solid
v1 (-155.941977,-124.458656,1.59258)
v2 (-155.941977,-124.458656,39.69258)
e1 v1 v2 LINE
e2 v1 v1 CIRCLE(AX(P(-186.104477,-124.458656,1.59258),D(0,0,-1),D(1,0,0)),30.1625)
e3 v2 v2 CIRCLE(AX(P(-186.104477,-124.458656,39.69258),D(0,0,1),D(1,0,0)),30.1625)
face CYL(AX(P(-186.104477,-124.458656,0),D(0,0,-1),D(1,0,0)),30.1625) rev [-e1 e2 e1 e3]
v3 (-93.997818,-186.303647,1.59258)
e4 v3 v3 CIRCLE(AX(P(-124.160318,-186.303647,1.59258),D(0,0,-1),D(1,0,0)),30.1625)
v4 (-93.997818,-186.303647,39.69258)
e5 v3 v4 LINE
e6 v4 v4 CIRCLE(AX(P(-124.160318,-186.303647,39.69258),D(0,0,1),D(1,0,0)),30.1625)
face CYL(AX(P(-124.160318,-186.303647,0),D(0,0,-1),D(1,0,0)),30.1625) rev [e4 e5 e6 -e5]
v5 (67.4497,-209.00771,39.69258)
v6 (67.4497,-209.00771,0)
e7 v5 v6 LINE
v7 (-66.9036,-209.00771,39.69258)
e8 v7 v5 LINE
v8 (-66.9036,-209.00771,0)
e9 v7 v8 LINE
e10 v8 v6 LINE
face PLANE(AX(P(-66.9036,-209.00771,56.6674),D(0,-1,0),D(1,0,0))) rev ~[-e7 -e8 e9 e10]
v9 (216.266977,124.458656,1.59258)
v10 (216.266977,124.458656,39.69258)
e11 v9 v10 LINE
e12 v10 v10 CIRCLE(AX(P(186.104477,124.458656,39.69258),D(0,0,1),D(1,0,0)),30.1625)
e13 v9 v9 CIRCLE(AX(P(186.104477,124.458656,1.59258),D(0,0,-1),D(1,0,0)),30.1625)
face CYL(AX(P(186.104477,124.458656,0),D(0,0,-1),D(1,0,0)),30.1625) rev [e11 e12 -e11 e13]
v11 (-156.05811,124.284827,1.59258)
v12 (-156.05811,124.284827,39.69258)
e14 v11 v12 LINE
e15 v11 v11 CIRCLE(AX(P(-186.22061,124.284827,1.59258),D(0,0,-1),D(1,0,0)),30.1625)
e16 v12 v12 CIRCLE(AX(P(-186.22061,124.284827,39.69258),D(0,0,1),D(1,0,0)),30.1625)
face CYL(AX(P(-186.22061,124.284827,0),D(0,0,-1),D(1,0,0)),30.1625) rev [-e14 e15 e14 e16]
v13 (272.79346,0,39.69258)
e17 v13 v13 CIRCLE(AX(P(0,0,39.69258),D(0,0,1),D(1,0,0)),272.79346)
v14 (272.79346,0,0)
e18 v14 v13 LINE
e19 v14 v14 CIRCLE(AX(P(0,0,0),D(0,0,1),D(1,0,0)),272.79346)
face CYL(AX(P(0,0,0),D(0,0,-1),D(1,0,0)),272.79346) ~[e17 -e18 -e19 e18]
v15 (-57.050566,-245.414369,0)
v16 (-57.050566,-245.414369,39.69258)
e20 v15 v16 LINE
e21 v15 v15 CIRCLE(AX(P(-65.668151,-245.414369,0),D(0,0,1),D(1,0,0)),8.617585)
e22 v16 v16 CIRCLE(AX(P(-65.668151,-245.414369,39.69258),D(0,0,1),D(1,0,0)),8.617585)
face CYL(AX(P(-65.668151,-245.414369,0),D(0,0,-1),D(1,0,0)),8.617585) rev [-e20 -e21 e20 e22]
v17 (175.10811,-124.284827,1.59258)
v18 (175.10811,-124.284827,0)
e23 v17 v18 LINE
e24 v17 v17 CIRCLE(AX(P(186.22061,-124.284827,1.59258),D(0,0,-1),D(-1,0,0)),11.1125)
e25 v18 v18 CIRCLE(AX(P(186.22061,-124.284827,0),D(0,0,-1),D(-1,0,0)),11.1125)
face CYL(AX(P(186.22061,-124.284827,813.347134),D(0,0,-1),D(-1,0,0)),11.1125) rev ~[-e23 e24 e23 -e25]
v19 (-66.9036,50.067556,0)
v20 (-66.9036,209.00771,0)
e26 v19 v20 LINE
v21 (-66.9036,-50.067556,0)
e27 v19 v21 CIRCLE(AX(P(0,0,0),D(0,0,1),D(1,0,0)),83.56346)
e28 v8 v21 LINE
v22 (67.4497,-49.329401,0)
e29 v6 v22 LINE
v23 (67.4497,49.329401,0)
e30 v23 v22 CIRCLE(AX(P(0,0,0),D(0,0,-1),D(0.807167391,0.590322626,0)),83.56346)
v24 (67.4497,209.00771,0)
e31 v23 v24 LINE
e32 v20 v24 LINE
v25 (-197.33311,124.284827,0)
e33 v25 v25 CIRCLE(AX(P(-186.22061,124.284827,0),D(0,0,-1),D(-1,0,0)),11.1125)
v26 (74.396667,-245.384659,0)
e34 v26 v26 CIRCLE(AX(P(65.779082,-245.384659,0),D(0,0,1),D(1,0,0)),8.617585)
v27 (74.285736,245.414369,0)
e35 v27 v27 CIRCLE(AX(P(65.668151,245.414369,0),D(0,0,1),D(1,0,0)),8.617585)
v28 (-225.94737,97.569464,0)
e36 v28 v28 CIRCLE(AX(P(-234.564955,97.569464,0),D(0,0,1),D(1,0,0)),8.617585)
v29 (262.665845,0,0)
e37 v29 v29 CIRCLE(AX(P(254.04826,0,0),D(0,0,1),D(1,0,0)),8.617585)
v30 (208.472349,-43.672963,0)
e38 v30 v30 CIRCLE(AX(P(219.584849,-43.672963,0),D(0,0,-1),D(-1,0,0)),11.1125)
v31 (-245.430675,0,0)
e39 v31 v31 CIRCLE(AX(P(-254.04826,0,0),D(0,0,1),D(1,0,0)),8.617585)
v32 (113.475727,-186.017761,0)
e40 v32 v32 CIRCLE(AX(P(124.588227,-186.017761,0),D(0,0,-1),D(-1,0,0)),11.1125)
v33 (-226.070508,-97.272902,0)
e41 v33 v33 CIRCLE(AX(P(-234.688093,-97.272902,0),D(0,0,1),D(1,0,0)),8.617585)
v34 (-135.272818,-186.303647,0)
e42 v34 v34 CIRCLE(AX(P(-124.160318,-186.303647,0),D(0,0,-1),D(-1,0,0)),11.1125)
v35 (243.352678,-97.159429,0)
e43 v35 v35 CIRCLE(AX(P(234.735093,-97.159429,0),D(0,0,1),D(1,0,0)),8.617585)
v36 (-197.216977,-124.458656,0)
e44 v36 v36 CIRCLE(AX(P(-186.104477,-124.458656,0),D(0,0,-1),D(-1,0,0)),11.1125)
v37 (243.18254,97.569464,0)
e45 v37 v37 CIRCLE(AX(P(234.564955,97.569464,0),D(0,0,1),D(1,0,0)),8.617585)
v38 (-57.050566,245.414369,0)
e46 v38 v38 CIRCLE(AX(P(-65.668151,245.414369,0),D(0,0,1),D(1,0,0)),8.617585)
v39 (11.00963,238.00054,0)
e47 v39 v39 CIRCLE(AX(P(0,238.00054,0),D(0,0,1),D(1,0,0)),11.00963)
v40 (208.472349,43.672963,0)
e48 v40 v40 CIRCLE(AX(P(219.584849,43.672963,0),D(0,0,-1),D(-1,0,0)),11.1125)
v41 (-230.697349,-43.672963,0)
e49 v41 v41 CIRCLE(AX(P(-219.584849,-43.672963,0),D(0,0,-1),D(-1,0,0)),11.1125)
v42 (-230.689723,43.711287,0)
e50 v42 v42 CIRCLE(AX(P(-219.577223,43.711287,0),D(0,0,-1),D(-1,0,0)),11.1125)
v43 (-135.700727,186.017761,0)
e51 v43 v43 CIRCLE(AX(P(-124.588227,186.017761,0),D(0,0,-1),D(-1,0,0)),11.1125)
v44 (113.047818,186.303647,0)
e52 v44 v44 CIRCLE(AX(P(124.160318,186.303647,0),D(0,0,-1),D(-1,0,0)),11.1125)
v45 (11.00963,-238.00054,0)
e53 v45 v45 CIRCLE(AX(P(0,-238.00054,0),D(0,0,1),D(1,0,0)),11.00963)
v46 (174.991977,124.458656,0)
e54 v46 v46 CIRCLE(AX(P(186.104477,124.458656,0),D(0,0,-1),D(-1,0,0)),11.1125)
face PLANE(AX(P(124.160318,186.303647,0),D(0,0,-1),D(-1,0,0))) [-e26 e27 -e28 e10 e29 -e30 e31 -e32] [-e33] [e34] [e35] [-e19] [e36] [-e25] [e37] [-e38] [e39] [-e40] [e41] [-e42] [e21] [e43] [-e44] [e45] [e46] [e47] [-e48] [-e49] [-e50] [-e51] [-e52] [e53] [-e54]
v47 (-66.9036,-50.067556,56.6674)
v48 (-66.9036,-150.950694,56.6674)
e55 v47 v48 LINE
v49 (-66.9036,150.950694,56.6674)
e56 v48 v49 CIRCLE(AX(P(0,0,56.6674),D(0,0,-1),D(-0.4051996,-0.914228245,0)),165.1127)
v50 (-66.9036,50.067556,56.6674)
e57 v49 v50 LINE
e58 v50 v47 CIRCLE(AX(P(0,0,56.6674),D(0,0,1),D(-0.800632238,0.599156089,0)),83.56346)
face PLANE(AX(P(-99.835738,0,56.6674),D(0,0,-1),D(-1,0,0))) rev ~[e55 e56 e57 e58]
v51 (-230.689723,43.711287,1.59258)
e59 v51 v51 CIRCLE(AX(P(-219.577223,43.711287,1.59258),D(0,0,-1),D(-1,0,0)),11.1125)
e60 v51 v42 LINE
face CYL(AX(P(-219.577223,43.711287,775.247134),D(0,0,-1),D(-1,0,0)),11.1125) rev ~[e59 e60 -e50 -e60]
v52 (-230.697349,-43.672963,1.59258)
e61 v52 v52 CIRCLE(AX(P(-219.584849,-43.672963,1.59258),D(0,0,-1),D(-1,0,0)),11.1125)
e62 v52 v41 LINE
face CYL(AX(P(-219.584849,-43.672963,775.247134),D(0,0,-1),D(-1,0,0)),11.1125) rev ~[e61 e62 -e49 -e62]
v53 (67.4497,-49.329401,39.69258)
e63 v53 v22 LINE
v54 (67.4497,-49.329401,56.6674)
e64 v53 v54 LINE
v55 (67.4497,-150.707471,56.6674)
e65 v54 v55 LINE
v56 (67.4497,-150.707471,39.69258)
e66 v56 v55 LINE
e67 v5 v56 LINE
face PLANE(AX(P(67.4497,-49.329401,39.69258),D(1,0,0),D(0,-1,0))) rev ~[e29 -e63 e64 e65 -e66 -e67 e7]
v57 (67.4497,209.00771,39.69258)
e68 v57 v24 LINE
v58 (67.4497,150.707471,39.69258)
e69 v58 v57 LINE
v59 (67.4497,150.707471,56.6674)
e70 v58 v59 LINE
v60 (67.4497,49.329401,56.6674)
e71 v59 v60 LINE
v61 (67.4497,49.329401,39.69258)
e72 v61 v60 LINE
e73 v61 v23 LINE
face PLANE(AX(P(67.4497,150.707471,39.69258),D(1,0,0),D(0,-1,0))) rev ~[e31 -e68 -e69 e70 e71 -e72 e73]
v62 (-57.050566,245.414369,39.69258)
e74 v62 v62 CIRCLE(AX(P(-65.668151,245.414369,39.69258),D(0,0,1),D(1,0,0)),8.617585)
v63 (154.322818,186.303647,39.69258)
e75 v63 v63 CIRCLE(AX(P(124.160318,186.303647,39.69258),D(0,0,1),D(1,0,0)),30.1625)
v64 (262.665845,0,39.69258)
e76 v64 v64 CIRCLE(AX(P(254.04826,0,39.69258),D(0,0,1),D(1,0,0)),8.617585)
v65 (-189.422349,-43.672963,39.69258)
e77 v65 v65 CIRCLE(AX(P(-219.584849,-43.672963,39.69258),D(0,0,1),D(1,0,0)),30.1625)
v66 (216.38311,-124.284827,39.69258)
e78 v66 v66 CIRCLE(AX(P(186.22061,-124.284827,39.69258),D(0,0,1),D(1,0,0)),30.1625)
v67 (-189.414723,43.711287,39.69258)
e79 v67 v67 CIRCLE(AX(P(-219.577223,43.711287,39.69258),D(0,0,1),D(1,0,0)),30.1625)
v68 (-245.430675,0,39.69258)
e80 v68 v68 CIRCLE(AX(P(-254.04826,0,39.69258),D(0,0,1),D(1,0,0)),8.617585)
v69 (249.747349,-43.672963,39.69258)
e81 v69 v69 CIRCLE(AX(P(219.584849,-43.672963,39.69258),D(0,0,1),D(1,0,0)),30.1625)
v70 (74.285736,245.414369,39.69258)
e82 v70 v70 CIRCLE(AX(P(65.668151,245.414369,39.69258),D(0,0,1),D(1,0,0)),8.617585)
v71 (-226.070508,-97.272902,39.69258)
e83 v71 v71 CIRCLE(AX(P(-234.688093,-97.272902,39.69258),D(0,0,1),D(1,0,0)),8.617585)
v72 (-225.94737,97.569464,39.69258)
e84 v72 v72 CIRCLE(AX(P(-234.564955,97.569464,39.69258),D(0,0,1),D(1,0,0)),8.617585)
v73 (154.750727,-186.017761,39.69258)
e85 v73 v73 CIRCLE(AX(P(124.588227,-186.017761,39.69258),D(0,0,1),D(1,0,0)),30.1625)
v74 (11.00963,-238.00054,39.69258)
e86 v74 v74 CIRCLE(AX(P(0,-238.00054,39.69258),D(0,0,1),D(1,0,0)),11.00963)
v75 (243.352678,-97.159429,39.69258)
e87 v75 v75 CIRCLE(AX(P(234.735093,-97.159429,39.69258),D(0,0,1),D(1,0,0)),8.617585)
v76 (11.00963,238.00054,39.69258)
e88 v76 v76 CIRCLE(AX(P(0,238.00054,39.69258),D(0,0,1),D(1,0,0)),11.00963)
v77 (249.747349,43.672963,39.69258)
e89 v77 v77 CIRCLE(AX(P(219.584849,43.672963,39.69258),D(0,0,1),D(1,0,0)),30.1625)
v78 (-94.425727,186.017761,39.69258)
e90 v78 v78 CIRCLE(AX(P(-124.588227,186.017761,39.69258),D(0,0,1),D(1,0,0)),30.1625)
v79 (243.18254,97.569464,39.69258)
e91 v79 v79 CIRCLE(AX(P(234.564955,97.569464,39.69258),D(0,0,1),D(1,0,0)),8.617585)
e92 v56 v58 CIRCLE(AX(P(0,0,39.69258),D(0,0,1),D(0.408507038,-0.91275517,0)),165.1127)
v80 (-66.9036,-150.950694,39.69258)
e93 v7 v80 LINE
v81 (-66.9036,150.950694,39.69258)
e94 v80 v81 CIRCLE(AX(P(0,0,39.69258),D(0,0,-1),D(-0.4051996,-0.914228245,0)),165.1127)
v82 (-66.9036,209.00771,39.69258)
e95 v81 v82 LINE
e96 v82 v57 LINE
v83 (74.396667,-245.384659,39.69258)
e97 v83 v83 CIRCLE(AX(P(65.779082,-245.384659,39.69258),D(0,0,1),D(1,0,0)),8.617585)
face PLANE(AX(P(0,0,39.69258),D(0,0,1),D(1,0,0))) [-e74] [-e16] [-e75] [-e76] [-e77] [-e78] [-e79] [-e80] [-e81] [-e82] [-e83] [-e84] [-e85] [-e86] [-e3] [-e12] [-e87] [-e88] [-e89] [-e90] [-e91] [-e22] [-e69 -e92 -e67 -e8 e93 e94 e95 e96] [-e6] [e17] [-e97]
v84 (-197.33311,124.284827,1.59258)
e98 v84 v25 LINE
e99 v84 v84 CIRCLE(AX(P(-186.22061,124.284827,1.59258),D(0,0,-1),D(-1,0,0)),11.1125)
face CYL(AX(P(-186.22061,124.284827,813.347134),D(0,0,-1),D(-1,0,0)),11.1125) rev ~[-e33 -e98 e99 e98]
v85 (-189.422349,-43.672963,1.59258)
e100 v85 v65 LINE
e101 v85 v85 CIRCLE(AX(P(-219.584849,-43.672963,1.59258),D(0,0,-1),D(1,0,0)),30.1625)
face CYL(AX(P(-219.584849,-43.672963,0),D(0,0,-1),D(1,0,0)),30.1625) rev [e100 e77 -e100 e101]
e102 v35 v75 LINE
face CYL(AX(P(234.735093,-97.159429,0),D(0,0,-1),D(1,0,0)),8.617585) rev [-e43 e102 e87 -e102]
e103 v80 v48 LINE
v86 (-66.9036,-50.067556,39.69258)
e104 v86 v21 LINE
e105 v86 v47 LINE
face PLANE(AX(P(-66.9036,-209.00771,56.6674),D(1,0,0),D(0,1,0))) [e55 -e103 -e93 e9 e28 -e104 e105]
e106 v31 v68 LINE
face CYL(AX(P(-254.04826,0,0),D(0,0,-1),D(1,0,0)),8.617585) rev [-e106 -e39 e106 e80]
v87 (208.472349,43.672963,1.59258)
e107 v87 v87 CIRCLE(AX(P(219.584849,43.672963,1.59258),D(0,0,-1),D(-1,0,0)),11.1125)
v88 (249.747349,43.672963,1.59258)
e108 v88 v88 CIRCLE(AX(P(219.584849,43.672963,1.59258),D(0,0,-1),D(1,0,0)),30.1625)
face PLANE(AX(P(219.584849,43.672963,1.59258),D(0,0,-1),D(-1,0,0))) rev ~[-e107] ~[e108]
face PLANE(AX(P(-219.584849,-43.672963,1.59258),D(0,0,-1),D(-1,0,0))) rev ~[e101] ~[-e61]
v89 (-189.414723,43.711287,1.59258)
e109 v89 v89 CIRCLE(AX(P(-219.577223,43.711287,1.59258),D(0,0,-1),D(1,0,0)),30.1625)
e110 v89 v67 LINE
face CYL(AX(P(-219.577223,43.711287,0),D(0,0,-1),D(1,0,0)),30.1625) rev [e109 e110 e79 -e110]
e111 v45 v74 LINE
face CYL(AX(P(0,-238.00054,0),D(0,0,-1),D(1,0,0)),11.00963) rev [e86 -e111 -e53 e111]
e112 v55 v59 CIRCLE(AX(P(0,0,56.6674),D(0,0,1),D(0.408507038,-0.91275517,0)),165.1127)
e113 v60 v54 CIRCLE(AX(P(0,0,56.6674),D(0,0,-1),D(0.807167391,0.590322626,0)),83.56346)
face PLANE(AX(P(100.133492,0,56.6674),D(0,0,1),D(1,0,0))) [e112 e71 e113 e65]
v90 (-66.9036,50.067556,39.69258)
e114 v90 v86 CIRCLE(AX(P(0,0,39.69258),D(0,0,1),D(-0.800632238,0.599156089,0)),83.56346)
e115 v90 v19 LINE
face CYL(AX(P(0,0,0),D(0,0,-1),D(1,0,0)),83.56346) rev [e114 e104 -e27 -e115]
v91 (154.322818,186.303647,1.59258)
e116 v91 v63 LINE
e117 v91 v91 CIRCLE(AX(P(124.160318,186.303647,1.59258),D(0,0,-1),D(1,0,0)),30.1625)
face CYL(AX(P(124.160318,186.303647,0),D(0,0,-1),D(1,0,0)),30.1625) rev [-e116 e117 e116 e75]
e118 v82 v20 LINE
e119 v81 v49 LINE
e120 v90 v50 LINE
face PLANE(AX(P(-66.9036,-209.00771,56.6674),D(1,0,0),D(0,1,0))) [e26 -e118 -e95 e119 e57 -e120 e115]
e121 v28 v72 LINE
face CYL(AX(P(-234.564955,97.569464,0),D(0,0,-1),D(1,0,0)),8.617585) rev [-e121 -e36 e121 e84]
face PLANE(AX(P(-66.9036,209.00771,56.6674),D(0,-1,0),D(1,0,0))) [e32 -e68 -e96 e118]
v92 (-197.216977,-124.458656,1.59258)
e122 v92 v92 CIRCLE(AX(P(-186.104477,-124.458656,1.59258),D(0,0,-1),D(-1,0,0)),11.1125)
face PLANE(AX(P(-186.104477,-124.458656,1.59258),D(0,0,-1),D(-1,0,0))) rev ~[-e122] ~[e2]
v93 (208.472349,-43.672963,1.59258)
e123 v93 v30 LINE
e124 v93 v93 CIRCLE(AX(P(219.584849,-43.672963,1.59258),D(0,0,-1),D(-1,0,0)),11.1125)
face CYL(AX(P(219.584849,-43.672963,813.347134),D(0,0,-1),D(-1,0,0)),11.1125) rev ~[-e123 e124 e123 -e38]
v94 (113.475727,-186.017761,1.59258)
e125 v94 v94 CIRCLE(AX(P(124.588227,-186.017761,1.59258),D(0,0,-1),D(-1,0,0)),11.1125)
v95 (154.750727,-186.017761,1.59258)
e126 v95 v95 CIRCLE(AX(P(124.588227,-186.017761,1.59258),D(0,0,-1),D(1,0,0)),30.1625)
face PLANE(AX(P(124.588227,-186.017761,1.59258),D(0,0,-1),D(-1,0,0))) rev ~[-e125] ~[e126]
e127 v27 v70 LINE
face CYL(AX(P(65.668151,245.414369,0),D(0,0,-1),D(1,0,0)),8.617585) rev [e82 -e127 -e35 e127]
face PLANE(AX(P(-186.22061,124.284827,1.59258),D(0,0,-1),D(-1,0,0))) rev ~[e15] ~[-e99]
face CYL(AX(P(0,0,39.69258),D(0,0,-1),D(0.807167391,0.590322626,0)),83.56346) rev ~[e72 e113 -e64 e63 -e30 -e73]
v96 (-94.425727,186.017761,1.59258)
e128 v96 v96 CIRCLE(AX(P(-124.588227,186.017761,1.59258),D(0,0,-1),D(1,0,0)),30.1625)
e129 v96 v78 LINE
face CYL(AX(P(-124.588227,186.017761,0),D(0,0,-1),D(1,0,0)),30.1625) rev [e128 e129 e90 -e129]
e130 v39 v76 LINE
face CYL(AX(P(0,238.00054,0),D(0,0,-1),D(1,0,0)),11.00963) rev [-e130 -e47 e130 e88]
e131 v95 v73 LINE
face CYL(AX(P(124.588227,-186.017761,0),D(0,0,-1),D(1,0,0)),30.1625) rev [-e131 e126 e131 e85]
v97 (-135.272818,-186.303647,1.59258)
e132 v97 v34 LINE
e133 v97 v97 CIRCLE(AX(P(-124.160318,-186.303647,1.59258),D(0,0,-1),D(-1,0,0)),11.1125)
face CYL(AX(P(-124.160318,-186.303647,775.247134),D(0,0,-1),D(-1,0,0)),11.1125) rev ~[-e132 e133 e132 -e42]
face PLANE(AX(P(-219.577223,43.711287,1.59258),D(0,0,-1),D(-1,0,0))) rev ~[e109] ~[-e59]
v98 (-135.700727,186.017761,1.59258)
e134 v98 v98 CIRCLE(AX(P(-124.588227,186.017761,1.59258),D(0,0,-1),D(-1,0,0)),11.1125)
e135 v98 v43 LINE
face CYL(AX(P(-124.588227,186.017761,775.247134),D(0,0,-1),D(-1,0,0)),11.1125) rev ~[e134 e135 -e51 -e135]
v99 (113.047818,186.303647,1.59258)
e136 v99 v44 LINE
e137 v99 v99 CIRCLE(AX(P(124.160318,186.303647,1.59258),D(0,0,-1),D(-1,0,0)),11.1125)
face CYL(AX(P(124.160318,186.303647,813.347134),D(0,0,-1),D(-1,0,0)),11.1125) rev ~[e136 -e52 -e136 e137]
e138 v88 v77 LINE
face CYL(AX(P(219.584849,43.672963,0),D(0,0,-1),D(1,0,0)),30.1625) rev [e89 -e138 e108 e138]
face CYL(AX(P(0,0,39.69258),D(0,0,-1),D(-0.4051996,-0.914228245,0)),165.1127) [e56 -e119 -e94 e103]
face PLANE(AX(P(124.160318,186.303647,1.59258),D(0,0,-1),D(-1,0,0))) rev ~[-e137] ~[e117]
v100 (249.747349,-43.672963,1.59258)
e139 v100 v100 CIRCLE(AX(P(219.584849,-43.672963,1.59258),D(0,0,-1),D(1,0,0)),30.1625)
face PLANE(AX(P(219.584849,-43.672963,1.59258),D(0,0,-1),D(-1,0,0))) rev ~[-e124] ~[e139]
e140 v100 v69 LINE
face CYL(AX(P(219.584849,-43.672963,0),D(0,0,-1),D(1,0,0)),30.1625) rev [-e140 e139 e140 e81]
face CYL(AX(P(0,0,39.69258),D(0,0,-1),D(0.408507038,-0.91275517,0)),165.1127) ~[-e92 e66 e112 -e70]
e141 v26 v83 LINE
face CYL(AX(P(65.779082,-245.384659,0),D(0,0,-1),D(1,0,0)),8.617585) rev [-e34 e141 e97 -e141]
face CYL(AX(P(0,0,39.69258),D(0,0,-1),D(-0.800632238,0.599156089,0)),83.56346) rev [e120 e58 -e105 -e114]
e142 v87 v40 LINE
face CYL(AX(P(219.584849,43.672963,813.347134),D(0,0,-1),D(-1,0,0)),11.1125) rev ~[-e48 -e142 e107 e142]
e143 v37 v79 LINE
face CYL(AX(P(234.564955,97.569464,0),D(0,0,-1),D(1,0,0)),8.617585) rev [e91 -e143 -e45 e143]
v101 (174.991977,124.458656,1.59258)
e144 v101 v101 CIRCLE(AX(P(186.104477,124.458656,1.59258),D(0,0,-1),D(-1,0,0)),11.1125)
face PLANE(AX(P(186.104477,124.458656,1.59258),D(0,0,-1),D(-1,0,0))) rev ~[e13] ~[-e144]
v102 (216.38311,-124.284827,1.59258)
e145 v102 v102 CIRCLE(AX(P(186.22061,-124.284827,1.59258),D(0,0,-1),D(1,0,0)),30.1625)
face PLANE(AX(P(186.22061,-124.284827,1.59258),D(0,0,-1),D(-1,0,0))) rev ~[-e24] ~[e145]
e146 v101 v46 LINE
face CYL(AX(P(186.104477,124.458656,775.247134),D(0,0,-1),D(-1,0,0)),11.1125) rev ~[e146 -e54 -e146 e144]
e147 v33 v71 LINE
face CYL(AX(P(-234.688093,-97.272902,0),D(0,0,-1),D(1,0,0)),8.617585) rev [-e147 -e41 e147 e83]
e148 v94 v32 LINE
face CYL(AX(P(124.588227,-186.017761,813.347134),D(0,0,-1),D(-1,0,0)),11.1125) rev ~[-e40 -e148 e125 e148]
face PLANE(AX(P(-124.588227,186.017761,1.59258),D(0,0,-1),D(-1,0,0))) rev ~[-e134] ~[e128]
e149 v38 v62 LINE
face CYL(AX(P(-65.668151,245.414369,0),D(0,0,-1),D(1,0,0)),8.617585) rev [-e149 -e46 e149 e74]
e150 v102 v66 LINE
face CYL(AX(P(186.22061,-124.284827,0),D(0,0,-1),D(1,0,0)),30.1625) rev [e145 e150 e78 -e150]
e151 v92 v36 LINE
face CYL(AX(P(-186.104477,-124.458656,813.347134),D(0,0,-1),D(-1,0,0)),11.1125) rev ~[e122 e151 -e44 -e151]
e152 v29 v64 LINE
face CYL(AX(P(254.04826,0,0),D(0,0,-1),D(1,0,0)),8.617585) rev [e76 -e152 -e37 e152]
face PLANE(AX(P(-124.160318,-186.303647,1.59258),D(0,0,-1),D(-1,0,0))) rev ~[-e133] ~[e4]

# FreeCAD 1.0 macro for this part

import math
import FreeCAD as App
import Part
import Sketcher

V = App.Vector
Q = App.Units.Quantity

doc = App.newDocument("Part")
params = doc.addObject("Spreadsheet::Sheet", "Params")
for row, (alias, value) in enumerate([
    ("sketch1_diameter", "2.375 in"),
    ("pad1_length", "1.5627 in"),
    ("pad2_length", "0.6683 in"),
    ("pocket1_length", "64.83223 mm"),
    ("sketch4_diameter", "2.375 in"),
    ("pad3_length", "0.0627 in"),
    ("sketch5_diameter", "0.875 in"),
    ("hole_diameter", "0.875 in"),
    ("sketch6_diameter", "0.875 in"),
    ("hole2_diameter", "0.875 in"),
], start=1):
    params.set(f"A{row}", alias)
    params.set(f"B{row}", "=" + value)
    params.setAlias(f"B{row}", alias)

body = doc.addObject("PartDesign::Body", "Body")

# Sketch on XY plane
sketch1 = doc.addObject("Sketcher::SketchObject", "Sketch")
body.addObject(sketch1)
sketch1.AttachmentSupport = (doc.XY_Plane, [""])
sketch1.MapMode = "FlatFace"
sketch1.addGeometry(Part.Circle(V(0, 0, 0), V(0, 0, 1), 272.79346), False)
sketch1.addGeometry(Part.Circle(V(-65.668151, -245.414369, 0), V(0, 0, 1), 8.617585), False)
sketch1.addGeometry(Part.Circle(V(-124.160318, -186.303647, 0), V(0, 0, 1), 30.1625), False)
sketch1.addGeometry(Part.Circle(V(-234.688093, -97.272902, 0), V(0, 0, 1), 8.617585), False)
sketch1.addGeometry(Part.Circle(V(-186.104477, -124.458656, 0), V(0, 0, 1), 30.1625), False)
sketch1.addGeometry(Part.Circle(V(-219.584849, -43.672963, 0), V(0, 0, 1), 30.1625), False)
sketch1.addGeometry(Part.Circle(V(-254.04826, 0, 0), V(0, 0, 1), 8.617585), False)
sketch1.addGeometry(Part.Circle(V(0, -238.00054, 0), V(0, 0, 1), 11.00963), False)
sketch1.addGeometry(Part.Circle(V(65.779082, -245.384659, 0), V(0, 0, 1), 8.617585), False)
sketch1.addGeometry(Part.Circle(V(124.588227, -186.017761, 0), V(0, 0, 1), 30.1625), False)
sketch1.addGeometry(Part.Circle(V(0, 0, 0), V(0, 0, 1), 83.56346), False)
sketch1.addGeometry(Part.Circle(V(186.22061, -124.284827, 0), V(0, 0, 1), 30.1625), False)
sketch1.addGeometry(Part.Circle(V(234.735093, -97.159429, 0), V(0, 0, 1), 8.617585), False)
sketch1.addGeometry(Part.Circle(V(219.584849, -43.672963, 0), V(0, 0, 1), 30.1625), False)
sketch1.addGeometry(Part.Circle(V(254.04826, 0, 0), V(0, 0, 1), 8.617585), False)
sketch1.addGeometry(Part.Circle(V(-219.577223, 43.711287, 0), V(0, 0, 1), 30.1625), False)
sketch1.addGeometry(Part.Circle(V(-234.564955, 97.569464, 0), V(0, 0, 1), 8.617585), False)
sketch1.addGeometry(Part.Circle(V(-186.22061, 124.284827, 0), V(0, 0, 1), 30.1625), False)
sketch1.addGeometry(Part.Circle(V(-124.588227, 186.017761, 0), V(0, 0, 1), 30.1625), False)
sketch1.addGeometry(Part.Circle(V(-65.668151, 245.414369, 0), V(0, 0, 1), 8.617585), False)
sketch1.addGeometry(Part.Circle(V(219.584849, 43.672963, 0), V(0, 0, 1), 30.1625), False)
sketch1.addGeometry(Part.Circle(V(186.104477, 124.458656, 0), V(0, 0, 1), 30.1625), False)
sketch1.addGeometry(Part.Circle(V(234.564955, 97.569464, 0), V(0, 0, 1), 8.617585), False)
sketch1.addGeometry(Part.Circle(V(124.160318, 186.303647, 0), V(0, 0, 1), 30.1625), False)
sketch1.addGeometry(Part.Circle(V(0, 238.00054, 0), V(0, 0, 1), 11.00963), False)
sketch1.addGeometry(Part.Circle(V(65.668151, 245.414369, 0), V(0, 0, 1), 8.617585), False)
sketch1.addConstraint(Sketcher.Constraint("Coincident", 0, 3, -1, 1))
sketch1.addConstraint(Sketcher.Constraint("Coincident", 10, 3, -1, 1))
sketch1.addConstraint(Sketcher.Constraint("Equal", 1, 3))
sketch1.addConstraint(Sketcher.Constraint("Equal", 2, 4))
sketch1.addConstraint(Sketcher.Constraint("Equal", 4, 5))
sketch1.addConstraint(Sketcher.Constraint("Equal", 3, 6))
sketch1.addConstraint(Sketcher.Constraint("Equal", 6, 8))
sketch1.addConstraint(Sketcher.Constraint("Equal", 5, 9))
sketch1.addConstraint(Sketcher.Constraint("Equal", 9, 11))
sketch1.addConstraint(Sketcher.Constraint("Equal", 8, 12))
sketch1.addConstraint(Sketcher.Constraint("Equal", 11, 13))
sketch1.addConstraint(Sketcher.Constraint("Equal", 12, 14))
sketch1.addConstraint(Sketcher.Constraint("Equal", 13, 15))
sketch1.addConstraint(Sketcher.Constraint("Equal", 14, 16))
sketch1.addConstraint(Sketcher.Constraint("Equal", 15, 17))
sketch1.addConstraint(Sketcher.Constraint("Equal", 17, 18))
sketch1.addConstraint(Sketcher.Constraint("Equal", 16, 19))
sketch1.addConstraint(Sketcher.Constraint("Equal", 18, 20))
sketch1.addConstraint(Sketcher.Constraint("Equal", 20, 21))
sketch1.addConstraint(Sketcher.Constraint("Equal", 19, 22))
sketch1.addConstraint(Sketcher.Constraint("Equal", 21, 23))
sketch1.addConstraint(Sketcher.Constraint("Equal", 7, 24))
sketch1.addConstraint(Sketcher.Constraint("Equal", 22, 25))
sketch1.addConstraint(Sketcher.Constraint("Symmetric", 6, 3, 14, 3, -1, 1))
sketch1.addConstraint(Sketcher.Constraint("Symmetric", 11, 3, 17, 3, -1, 1))
sketch1.addConstraint(Sketcher.Constraint("Symmetric", 9, 3, 18, 3, -1, 1))
sketch1.addConstraint(Sketcher.Constraint("Symmetric", 5, 3, 20, 3, -1, 1))
sketch1.addConstraint(Sketcher.Constraint("Symmetric", 4, 3, 21, 3, -1, 1))
sketch1.addConstraint(Sketcher.Constraint("Symmetric", 2, 3, 23, 3, -1, 1))
sketch1.addConstraint(Sketcher.Constraint("Symmetric", 7, 3, 24, 3, -1, 1))
sketch1.addConstraint(Sketcher.Constraint("Symmetric", 1, 3, 25, 3, -1, 1))
sketch1.addConstraint(Sketcher.Constraint("Symmetric", 5, 3, 13, 3, -2))
sketch1.addConstraint(Sketcher.Constraint("Symmetric", 16, 3, 22, 3, -2))
sketch1.addConstraint(Sketcher.Constraint("Symmetric", 19, 3, 25, 3, -2))
sketch1.addConstraint(Sketcher.Constraint("PointOnObject", 6, 3, -1))
sketch1.addConstraint(Sketcher.Constraint("PointOnObject", 7, 3, -2))
sketch1.addConstraint(Sketcher.Constraint("Diameter", 2, Q("2.375 in")))
sketch1.addConstraint(Sketcher.Constraint("Diameter", 0, Q("21.4798 in")))
sketch1.addConstraint(Sketcher.Constraint("Diameter", 7, Q("0.8669 in")))
sketch1.addConstraint(Sketcher.Constraint("Diameter", 10, Q("6.5798 in")))
sketch1.addConstraint(Sketcher.Constraint("Diameter", 1, 17.23517))
sketch1.addConstraint(Sketcher.Constraint("DistanceX", 6, 3, -1, 1, Q("10.0019 in")))
sketch1.addConstraint(Sketcher.Constraint("DistanceY", 7, 3, -1, 1, Q("9.3701 in")))
sketch1.addConstraint(Sketcher.Constraint("DistanceX", 2, 3, 8, 3, 189.939399))
sketch1.addConstraint(Sketcher.Constraint("DistanceY", 8, 3, 9, 3, 59.366898))
sketch1.addConstraint(Sketcher.Constraint("DistanceY", 9, 3, 13, 3, 142.344798))
sketch1.addConstraint(Sketcher.Constraint("DistanceY", 20, 3, 22, 3, 53.896501))
sketch1.addConstraint(Sketcher.Constraint("DistanceX", 1, 3, -1, 1, 65.668151))
sketch1.addConstraint(Sketcher.Constraint("DistanceY", 1, 3, -1, 1, 245.414369))
sketch1.addConstraint(Sketcher.Constraint("DistanceX", 5, 3, -1, 1, 219.584849))
sketch1.addConstraint(Sketcher.Constraint("DistanceX", -1, 1, 8, 3, 65.779082))
sketch1.addConstraint(Sketcher.Constraint("DistanceY", 8, 3, -1, 1, 245.384659))
sketch1.addConstraint(Sketcher.Constraint("DistanceX", -1, 1, 11, 3, 186.22061))
sketch1.addConstraint(Sketcher.Constraint("DistanceY", 12, 3, -1, 1, 97.159429))
sketch1.addConstraint(Sketcher.Constraint("DistanceY", 1, 3, 2, 3, 59.110721))
sketch1.addConstraint(Sketcher.Constraint("DistanceX", 3, 3, 1, 3, 169.019942))
sketch1.addConstraint(Sketcher.Constraint("DistanceX", 4, 3, 2, 3, 61.94416))
sketch1.addConstraint(Sketcher.Constraint("DistanceY", 2, 3, 4, 3, 61.844991))
sketch1.addConstraint(Sketcher.Constraint("DistanceY", 3, 3, 5, 3, 53.599939))
sketch1.addConstraint(Sketcher.Constraint("DistanceX", 8, 3, 12, 3, 168.956011))
sketch1.addConstraint(Sketcher.Constraint("DistanceY", 5, 3, 15, 3, 87.38425))
sketch1.addConstraint(Sketcher.Constraint("DistanceX", 3, 3, 15, 3, 15.11087))
sketch1.addConstraint(Sketcher.Constraint("DistanceY", 15, 3, 17, 3, 80.57354))
sketch1.addConstraint(Sketcher.Constraint("DistanceX", 16, 3, 18, 3, 109.976729))
sketch1.addConstraint(Sketcher.Constraint("DistanceX", -1, 1, 9, 3, 124.588227))
sketch1.setExpression("Constraints[36]", "Params.sketch1_diameter")
pad1 = doc.addObject("PartDesign::Pad", "Pad")
body.addObject(pad1)
pad1.Profile = sketch1
pad1.setExpression("Length", "Params.pad1_length")

# Sketch on XY plane
sketch2 = doc.addObject("Sketcher::SketchObject", "Sketch001")
body.addObject(sketch2)
sketch2.AttachmentSupport = (doc.XY_Plane, [""])
sketch2.MapMode = "FlatFace"
sketch2.AttachmentOffset = App.Placement(V(0, 0, 1.5627 * 25.4), App.Rotation())
sketch2.addGeometry(Part.LineSegment(V(-66.9036, 50.067556, 0), V(-66.9036, 150.950694, 0)), False)
sketch2.addGeometry(Part.ArcOfCircle(Part.Circle(V(0, 0, 0), V(0, 0, 1), 165.1127), math.radians(113.903636), math.radians(246.096364)), False)
sketch2.addGeometry(Part.LineSegment(V(-66.9036, -150.950694, 0), V(-66.9036, -50.067556, 0)), False)
sketch2.addGeometry(Part.ArcOfCircle(Part.Circle(V(0, 0, 0), V(0, 0, 1), 83.56346), math.radians(143.190519), math.radians(216.809481)), False)
sketch2.addGeometry(Part.LineSegment(V(67.4497, 150.707471, 0), V(67.4497, 49.329401, 0)), False)
sketch2.addGeometry(Part.ArcOfCircle(Part.Circle(V(0, 0, 0), V(0, 0, 1), 83.56346), math.radians(-36.179906), math.radians(36.179906)), False)
sketch2.addGeometry(Part.LineSegment(V(67.4497, -49.329401, 0), V(67.4497, -150.707471, 0)), False)
sketch2.addGeometry(Part.ArcOfCircle(Part.Circle(V(0, 0, 0), V(0, 0, 1), 165.1127), math.radians(-65.888916), math.radians(65.888916)), False)
sketch2.addConstraint(Sketcher.Constraint("Coincident", 0, 2, 1, 1))
sketch2.addConstraint(Sketcher.Constraint("Coincident", 1, 2, 2, 1))
sketch2.addConstraint(Sketcher.Constraint("Coincident", 2, 2, 3, 2))
sketch2.addConstraint(Sketcher.Constraint("Coincident", 3, 1, 0, 1))
sketch2.addConstraint(Sketcher.Constraint("Coincident", 4, 2, 5, 2))
sketch2.addConstraint(Sketcher.Constraint("Coincident", 5, 1, 6, 1))
sketch2.addConstraint(Sketcher.Constraint("Coincident", 6, 2, 7, 1))
sketch2.addConstraint(Sketcher.Constraint("Coincident", 7, 2, 4, 1))
sketch2.addConstraint(Sketcher.Constraint("Vertical", 0))
sketch2.addConstraint(Sketcher.Constraint("Vertical", 2))
sketch2.addConstraint(Sketcher.Constraint("Vertical", 4))
sketch2.addConstraint(Sketcher.Constraint("Vertical", 6))
sketch2.addConstraint(Sketcher.Constraint("Coincident", 1, 3, -1, 1))
sketch2.addConstraint(Sketcher.Constraint("Coincident", 3, 3, -1, 1))
sketch2.addConstraint(Sketcher.Constraint("Coincident", 5, 3, -1, 1))
sketch2.addConstraint(Sketcher.Constraint("Coincident", 7, 3, -1, 1))
sketch2.addConstraint(Sketcher.Constraint("Equal", 3, 5))
sketch2.addConstraint(Sketcher.Constraint("Equal", 1, 7))
sketch2.addConstraint(Sketcher.Constraint("Vertical", 0, 2, 1, 2))
sketch2.addConstraint(Sketcher.Constraint("Vertical", 4, 2, 5, 1))
sketch2.addConstraint(Sketcher.Constraint("Radius", 1, Q("6.5005 in")))
sketch2.addConstraint(Sketcher.Constraint("Radius", 3, Q("3.2899 in")))
sketch2.addConstraint(Sketcher.Constraint("DistanceX", 0, 2, -1, 1, Q("2.634 in")))
sketch2.addConstraint(Sketcher.Constraint("DistanceX", -1, 1, 4, 2, Q("2.6555 in")))
pad2 = doc.addObject("PartDesign::Pad", "Pad001")
body.addObject(pad2)
pad2.Profile = sketch2
pad2.setExpression("Length", "Params.pad2_length")

# Sketch on XY plane
sketch3 = doc.addObject("Sketcher::SketchObject", "Sketch002")
body.addObject(sketch3)
sketch3.AttachmentSupport = (doc.XY_Plane, [""])
sketch3.MapMode = "FlatFace"
sketch3.AttachmentOffset = App.Placement(V(0, 0, 2.231 * 25.4), App.Rotation())
sketch3.addGeometry(Part.LineSegment(V(-66.9036, 209.00771, 0), V(-66.9036, -209.00771, 0)), False)
sketch3.addGeometry(Part.LineSegment(V(-66.9036, -209.00771, 0), V(67.4497, -209.00771, 0)), False)
sketch3.addGeometry(Part.LineSegment(V(67.4497, -209.00771, 0), V(67.4497, 209.00771, 0)), False)
sketch3.addGeometry(Part.LineSegment(V(67.4497, 209.00771, 0), V(-66.9036, 209.00771, 0)), False)
sketch3.addConstraint(Sketcher.Constraint("Coincident", 0, 2, 1, 1))
sketch3.addConstraint(Sketcher.Constraint("Coincident", 1, 2, 2, 1))
sketch3.addConstraint(Sketcher.Constraint("Coincident", 2, 2, 3, 1))
sketch3.addConstraint(Sketcher.Constraint("Coincident", 3, 2, 0, 1))
sketch3.addConstraint(Sketcher.Constraint("Vertical", 0))
sketch3.addConstraint(Sketcher.Constraint("Horizontal", 1))
sketch3.addConstraint(Sketcher.Constraint("Vertical", 2))
sketch3.addConstraint(Sketcher.Constraint("Horizontal", 3))
sketch3.addConstraint(Sketcher.Constraint("DistanceX", 1, 1, 1, 2, Q("5.2895 in")))
sketch3.addConstraint(Sketcher.Constraint("DistanceY", 0, 2, 0, 1, Q("16.4573 in")))
sketch3.addConstraint(Sketcher.Constraint("DistanceX", 0, 2, -1, 1, Q("2.634 in")))
sketch3.addConstraint(Sketcher.Constraint("DistanceY", 0, 2, -1, 1, 209.00771))
pocket1 = doc.addObject("PartDesign::Pocket", "Pocket")
body.addObject(pocket1)
pocket1.Profile = sketch3
pocket1.setExpression("Length", "Params.pocket1_length")

# Sketch on XY plane
sketch4 = doc.addObject("Sketcher::SketchObject", "Sketch003")
body.addObject(sketch4)
sketch4.AttachmentSupport = (doc.XY_Plane, [""])
sketch4.MapMode = "FlatFace"
sketch4.addGeometry(Part.Circle(V(124.160318, 186.303647, 0), V(0, 0, 1), 30.1625), False)
sketch4.addGeometry(Part.Circle(V(186.104477, 124.458656, 0), V(0, 0, 1), 30.1625), False)
sketch4.addGeometry(Part.Circle(V(219.584849, 43.672963, 0), V(0, 0, 1), 30.1625), False)
sketch4.addGeometry(Part.Circle(V(219.584849, -43.672963, 0), V(0, 0, 1), 30.1625), False)
sketch4.addGeometry(Part.Circle(V(186.22061, -124.284827, 0), V(0, 0, 1), 30.1625), False)
sketch4.addGeometry(Part.Circle(V(124.588227, -186.017761, 0), V(0, 0, 1), 30.1625), False)
sketch4.addGeometry(Part.Circle(V(-124.160318, -186.303647, 0), V(0, 0, 1), 30.1625), False)
sketch4.addGeometry(Part.Circle(V(-186.104477, -124.458656, 0), V(0, 0, 1), 30.1625), False)
sketch4.addGeometry(Part.Circle(V(-219.584849, -43.672963, 0), V(0, 0, 1), 30.1625), False)
sketch4.addGeometry(Part.Circle(V(-219.577223, 43.711287, 0), V(0, 0, 1), 30.1625), False)
sketch4.addGeometry(Part.Circle(V(-186.22061, 124.284827, 0), V(0, 0, 1), 30.1625), False)
sketch4.addGeometry(Part.Circle(V(-124.588227, 186.017761, 0), V(0, 0, 1), 30.1625), False)
sketch4.addConstraint(Sketcher.Constraint("Equal", 0, 1))
sketch4.addConstraint(Sketcher.Constraint("Equal", 1, 2))
sketch4.addConstraint(Sketcher.Constraint("Equal", 2, 3))
sketch4.addConstraint(Sketcher.Constraint("Equal", 3, 4))
sketch4.addConstraint(Sketcher.Constraint("Equal", 4, 5))
sketch4.addConstraint(Sketcher.Constraint("Equal", 5, 6))
sketch4.addConstraint(Sketcher.Constraint("Equal", 6, 7))
sketch4.addConstraint(Sketcher.Constraint("Equal", 7, 8))
sketch4.addConstraint(Sketcher.Constraint("Equal", 8, 9))
sketch4.addConstraint(Sketcher.Constraint("Equal", 9, 10))
sketch4.addConstraint(Sketcher.Constraint("Equal", 10, 11))
sketch4.addConstraint(Sketcher.Constraint("Symmetric", 0, 3, 6, 3, -1, 1))
sketch4.addConstraint(Sketcher.Constraint("Symmetric", 1, 3, 7, 3, -1, 1))
sketch4.addConstraint(Sketcher.Constraint("Symmetric", 2, 3, 8, 3, -1, 1))
sketch4.addConstraint(Sketcher.Constraint("Symmetric", 4, 3, 10, 3, -1, 1))
sketch4.addConstraint(Sketcher.Constraint("Symmetric", 5, 3, 11, 3, -1, 1))
sketch4.addConstraint(Sketcher.Constraint("Symmetric", 3, 3, 8, 3, -2))
sketch4.addConstraint(Sketcher.Constraint("Diameter", 0, Q("2.375 in")))
sketch4.addConstraint(Sketcher.Constraint("DistanceY", 5, 3, 3, 3, 142.344798))
sketch4.addConstraint(Sketcher.Constraint("DistanceX", 9, 3, 1, 3, 405.6817))
sketch4.addConstraint(Sketcher.Constraint("DistanceX", -1, 1, 2, 3, 219.584849))
sketch4.addConstraint(Sketcher.Constraint("DistanceX", -1, 1, 4, 3, 186.22061))
sketch4.addConstraint(Sketcher.Constraint("DistanceY", 5, 3, -1, 1, 186.017761))
sketch4.addConstraint(Sketcher.Constraint("DistanceX", 0, 3, 1, 3, 61.94416))
sketch4.addConstraint(Sketcher.Constraint("DistanceY", 1, 3, 0, 3, 61.844991))
sketch4.addConstraint(Sketcher.Constraint("DistanceX", 1, 3, 2, 3, 33.480372))
sketch4.addConstraint(Sketcher.Constraint("DistanceY", 3, 3, 1, 3, 168.131619))
sketch4.addConstraint(Sketcher.Constraint("DistanceY", 4, 3, 2, 3, 167.957789))
sketch4.addConstraint(Sketcher.Constraint("DistanceX", 5, 3, 1, 3, 61.516251))
sketch4.addConstraint(Sketcher.Constraint("DistanceY", 8, 3, 9, 3, 87.38425))
sketch4.setExpression("Constraints[17]", "Params.sketch4_diameter")
pad3 = doc.addObject("PartDesign::Pad", "Pad002")
body.addObject(pad3)
pad3.Profile = sketch4
pad3.setExpression("Length", "Params.pad3_length")

# Sketch on XY plane
sketch5 = doc.addObject("Sketcher::SketchObject", "Sketch004")
body.addObject(sketch5)
sketch5.AttachmentSupport = (doc.XY_Plane, [""])
sketch5.MapMode = "FlatFace"
sketch5.AttachmentOffset = App.Placement(V(0, 0, 1.5627 * 25.4), App.Rotation())
sketch5.addGeometry(Part.Circle(V(124.160318, 186.303647, 0), V(0, 0, 1), 11.1125), False)
sketch5.addGeometry(Part.Circle(V(219.584849, 43.672963, 0), V(0, 0, 1), 11.1125), False)
sketch5.addGeometry(Part.Circle(V(219.584849, -43.672963, 0), V(0, 0, 1), 11.1125), False)
sketch5.addGeometry(Part.Circle(V(186.22061, -124.284827, 0), V(0, 0, 1), 11.1125), False)
sketch5.addGeometry(Part.Circle(V(124.588227, -186.017761, 0), V(0, 0, 1), 11.1125), False)
sketch5.addGeometry(Part.Circle(V(-186.104477, -124.458656, 0), V(0, 0, 1), 11.1125), False)
sketch5.addGeometry(Part.Circle(V(-186.22061, 124.284827, 0), V(0, 0, 1), 11.1125), False)
sketch5.addConstraint(Sketcher.Constraint("Equal", 0, 1))
sketch5.addConstraint(Sketcher.Constraint("Equal", 1, 2))
sketch5.addConstraint(Sketcher.Constraint("Equal", 2, 3))
sketch5.addConstraint(Sketcher.Constraint("Equal", 3, 4))
sketch5.addConstraint(Sketcher.Constraint("Equal", 4, 5))
sketch5.addConstraint(Sketcher.Constraint("Equal", 5, 6))
sketch5.addConstraint(Sketcher.Constraint("Symmetric", 3, 3, 6, 3, -1, 1))
sketch5.addConstraint(Sketcher.Constraint("Symmetric", 1, 3, 2, 3, -1))
sketch5.addConstraint(Sketcher.Constraint("Diameter", 0, Q("0.875 in")))
sketch5.addConstraint(Sketcher.Constraint("DistanceY", 4, 3, 2, 3, 142.344798))
sketch5.addConstraint(Sketcher.Constraint("DistanceX", -1, 1, 1, 3, 219.584849))
sketch5.addConstraint(Sketcher.Constraint("DistanceX", -1, 1, 3, 3, 186.22061))
sketch5.addConstraint(Sketcher.Constraint("DistanceY", 4, 3, -1, 1, 186.017761))
sketch5.addConstraint(Sketcher.Constraint("DistanceX", 0, 3, 1, 3, 95.424531))
sketch5.addConstraint(Sketcher.Constraint("DistanceY", 2, 3, 0, 3, 229.97661))
sketch5.addConstraint(Sketcher.Constraint("DistanceY", 3, 3, 1, 3, 167.957789))
sketch5.addConstraint(Sketcher.Constraint("DistanceX", 0, 3, 4, 3, 0.427909))
sketch5.addConstraint(Sketcher.Constraint("DistanceY", 5, 3, 3, 3, 0.17383))
sketch5.addConstraint(Sketcher.Constraint("DistanceX", 5, 3, -1, 1, 186.104477))
sketch5.setExpression("Constraints[8]", "Params.sketch5_diameter")
doc.recompute()
hole = doc.addObject("PartDesign::Hole", "Hole")
body.addObject(hole)
hole.Profile = sketch5
hole.ThreadType = "None"
hole.setExpression("Diameter", "Params.hole_diameter")
hole.DepthType = "ThroughAll"

# Sketch on XY plane
sketch6 = doc.addObject("Sketcher::SketchObject", "Sketch005")
body.addObject(sketch6)
sketch6.AttachmentSupport = (doc.XY_Plane, [""])
sketch6.MapMode = "FlatFace"
sketch6.AttachmentOffset = App.Placement(V(0, 0, 0.0627 * 25.4), App.Rotation())
sketch6.addGeometry(Part.Circle(V(124.160318, 186.303647, 0), V(0, 0, 1), 11.1125), False)
sketch6.addGeometry(Part.Circle(V(186.104477, 124.458656, 0), V(0, 0, 1), 11.1125), False)
sketch6.addGeometry(Part.Circle(V(-124.160318, -186.303647, 0), V(0, 0, 1), 11.1125), False)
sketch6.addGeometry(Part.Circle(V(-219.584849, -43.672963, 0), V(0, 0, 1), 11.1125), False)
sketch6.addGeometry(Part.Circle(V(-219.577223, 43.711287, 0), V(0, 0, 1), 11.1125), False)
sketch6.addGeometry(Part.Circle(V(-124.588227, 186.017761, 0), V(0, 0, 1), 11.1125), False)
sketch6.addConstraint(Sketcher.Constraint("Equal", 0, 1))
sketch6.addConstraint(Sketcher.Constraint("Equal", 1, 2))
sketch6.addConstraint(Sketcher.Constraint("Equal", 2, 3))
sketch6.addConstraint(Sketcher.Constraint("Equal", 3, 4))
sketch6.addConstraint(Sketcher.Constraint("Equal", 4, 5))
sketch6.addConstraint(Sketcher.Constraint("Symmetric", 0, 3, 2, 3, -1, 1))
sketch6.addConstraint(Sketcher.Constraint("Diameter", 0, Q("0.875 in")))
sketch6.addConstraint(Sketcher.Constraint("DistanceX", 4, 3, 1, 3, 405.6817))
sketch6.addConstraint(Sketcher.Constraint("DistanceX", 3, 3, -1, 1, 219.584849))
sketch6.addConstraint(Sketcher.Constraint("DistanceY", -1, 1, 5, 3, 186.017761))
sketch6.addConstraint(Sketcher.Constraint("DistanceX", 0, 3, 1, 3, 61.94416))
sketch6.addConstraint(Sketcher.Constraint("DistanceY", 1, 3, 0, 3, 61.844991))
sketch6.addConstraint(Sketcher.Constraint("DistanceX", 3, 3, 2, 3, 95.424531))
sketch6.addConstraint(Sketcher.Constraint("DistanceY", 3, 3, 0, 3, 229.97661))
sketch6.addConstraint(Sketcher.Constraint("DistanceY", 3, 3, 4, 3, 87.38425))
sketch6.addConstraint(Sketcher.Constraint("DistanceX", 5, 3, 2, 3, 0.427909))
sketch6.addConstraint(Sketcher.Constraint("DistanceY", 2, 3, 5, 3, 372.321408))
sketch6.setExpression("Constraints[6]", "Params.sketch6_diameter")
doc.recompute()
hole2 = doc.addObject("PartDesign::Hole", "Hole001")
body.addObject(hole2)
hole2.Profile = sketch6
hole2.ThreadType = "None"
hole2.setExpression("Diameter", "Params.hole2_diameter")
hole2.DepthType = "ThroughAll"

doc.recompute()
